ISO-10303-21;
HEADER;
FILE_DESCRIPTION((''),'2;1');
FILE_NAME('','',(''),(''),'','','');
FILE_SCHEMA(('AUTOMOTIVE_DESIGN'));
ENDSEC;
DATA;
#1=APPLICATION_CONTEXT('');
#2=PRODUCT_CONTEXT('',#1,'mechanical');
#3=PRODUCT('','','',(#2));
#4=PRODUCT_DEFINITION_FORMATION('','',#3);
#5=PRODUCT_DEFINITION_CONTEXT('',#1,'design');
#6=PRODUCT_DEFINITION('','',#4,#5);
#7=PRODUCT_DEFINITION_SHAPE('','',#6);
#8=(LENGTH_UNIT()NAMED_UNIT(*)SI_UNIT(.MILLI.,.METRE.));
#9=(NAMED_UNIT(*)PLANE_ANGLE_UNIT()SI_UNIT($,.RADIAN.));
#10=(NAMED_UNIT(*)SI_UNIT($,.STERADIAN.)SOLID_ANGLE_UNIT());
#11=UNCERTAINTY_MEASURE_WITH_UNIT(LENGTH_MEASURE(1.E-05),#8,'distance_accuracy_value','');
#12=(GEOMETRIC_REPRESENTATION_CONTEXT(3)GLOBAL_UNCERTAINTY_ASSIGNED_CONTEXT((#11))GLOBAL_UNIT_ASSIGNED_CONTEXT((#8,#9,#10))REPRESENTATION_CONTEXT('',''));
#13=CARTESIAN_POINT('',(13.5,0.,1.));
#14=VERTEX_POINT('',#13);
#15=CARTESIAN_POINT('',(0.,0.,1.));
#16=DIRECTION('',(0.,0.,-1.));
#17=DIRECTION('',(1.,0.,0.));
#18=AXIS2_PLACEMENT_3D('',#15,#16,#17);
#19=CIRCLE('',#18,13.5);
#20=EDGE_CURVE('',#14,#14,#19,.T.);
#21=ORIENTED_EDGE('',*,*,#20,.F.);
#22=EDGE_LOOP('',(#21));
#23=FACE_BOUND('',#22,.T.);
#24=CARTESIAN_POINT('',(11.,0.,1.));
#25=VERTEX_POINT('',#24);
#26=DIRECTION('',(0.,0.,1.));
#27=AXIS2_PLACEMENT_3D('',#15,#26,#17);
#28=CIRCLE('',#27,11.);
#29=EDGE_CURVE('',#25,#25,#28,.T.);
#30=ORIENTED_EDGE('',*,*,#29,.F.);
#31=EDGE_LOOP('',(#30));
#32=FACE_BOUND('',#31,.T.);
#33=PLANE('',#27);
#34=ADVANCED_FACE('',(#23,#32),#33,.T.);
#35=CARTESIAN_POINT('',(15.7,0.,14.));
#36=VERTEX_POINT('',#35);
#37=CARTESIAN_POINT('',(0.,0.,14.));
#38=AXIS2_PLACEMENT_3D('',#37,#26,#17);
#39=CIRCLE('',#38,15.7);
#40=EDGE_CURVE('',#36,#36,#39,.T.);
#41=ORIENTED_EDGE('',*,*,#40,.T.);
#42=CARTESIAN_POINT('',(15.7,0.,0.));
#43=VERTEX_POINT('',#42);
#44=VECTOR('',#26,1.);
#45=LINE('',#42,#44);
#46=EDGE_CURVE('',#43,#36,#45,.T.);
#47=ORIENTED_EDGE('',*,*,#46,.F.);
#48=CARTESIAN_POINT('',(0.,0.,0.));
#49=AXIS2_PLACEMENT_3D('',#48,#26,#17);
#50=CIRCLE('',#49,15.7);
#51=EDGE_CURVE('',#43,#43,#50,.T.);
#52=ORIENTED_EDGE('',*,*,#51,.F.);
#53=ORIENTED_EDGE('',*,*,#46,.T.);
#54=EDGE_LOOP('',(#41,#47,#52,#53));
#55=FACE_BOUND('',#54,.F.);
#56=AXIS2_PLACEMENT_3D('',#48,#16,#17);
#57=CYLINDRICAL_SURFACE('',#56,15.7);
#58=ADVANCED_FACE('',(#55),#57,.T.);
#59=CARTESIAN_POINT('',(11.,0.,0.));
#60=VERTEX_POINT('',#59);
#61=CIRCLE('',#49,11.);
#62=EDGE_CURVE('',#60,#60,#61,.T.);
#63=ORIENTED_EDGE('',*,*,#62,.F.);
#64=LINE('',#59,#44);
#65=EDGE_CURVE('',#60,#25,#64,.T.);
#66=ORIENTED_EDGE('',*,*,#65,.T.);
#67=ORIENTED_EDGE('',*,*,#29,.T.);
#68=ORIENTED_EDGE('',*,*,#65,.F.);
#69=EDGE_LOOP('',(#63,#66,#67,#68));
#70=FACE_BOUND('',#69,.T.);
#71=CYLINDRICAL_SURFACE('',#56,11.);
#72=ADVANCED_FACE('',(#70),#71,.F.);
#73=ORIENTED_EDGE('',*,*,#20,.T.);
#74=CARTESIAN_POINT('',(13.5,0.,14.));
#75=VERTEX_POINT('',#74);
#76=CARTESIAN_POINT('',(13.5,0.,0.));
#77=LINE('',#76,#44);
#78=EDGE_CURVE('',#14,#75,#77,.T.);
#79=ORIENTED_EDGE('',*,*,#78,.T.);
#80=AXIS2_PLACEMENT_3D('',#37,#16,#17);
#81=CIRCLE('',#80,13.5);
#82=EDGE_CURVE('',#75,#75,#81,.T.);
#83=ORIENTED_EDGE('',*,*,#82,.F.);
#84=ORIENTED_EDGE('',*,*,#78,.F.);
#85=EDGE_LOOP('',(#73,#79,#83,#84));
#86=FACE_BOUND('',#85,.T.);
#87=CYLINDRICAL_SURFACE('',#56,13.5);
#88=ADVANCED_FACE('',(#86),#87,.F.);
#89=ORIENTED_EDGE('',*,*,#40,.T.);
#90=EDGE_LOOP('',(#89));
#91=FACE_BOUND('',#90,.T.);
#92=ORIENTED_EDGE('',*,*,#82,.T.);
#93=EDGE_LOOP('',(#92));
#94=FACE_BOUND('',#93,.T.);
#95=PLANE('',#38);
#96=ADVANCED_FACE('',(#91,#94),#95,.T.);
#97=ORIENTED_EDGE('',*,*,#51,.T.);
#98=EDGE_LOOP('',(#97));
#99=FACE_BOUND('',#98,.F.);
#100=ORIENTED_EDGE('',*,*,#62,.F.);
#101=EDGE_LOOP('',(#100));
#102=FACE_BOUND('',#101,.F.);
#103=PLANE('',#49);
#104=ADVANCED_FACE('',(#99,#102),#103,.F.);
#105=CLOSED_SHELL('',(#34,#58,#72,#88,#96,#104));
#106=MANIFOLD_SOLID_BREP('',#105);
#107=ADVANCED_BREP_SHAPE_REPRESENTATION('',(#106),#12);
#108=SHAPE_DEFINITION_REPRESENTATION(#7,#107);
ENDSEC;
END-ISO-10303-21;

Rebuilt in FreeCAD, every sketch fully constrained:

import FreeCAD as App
import Part
import Sketcher

V = App.Vector

doc = App.newDocument("Part")
body = doc.addObject("PartDesign::Body", "Body")

# Sketch on XY plane
sketch1 = body.newObject("Sketcher::SketchObject", "Sketch")
sketch1.AttachmentSupport = (doc.getObject("XY_Plane"), [""])
sketch1.MapMode = "FlatFace"
sketch1.addGeometry(Part.Circle(V(0, 0, 0), V(0, 0, 1), 14), False)
sketch1.addConstraint([
    Sketcher.Constraint("Coincident", 0, 3, -1, 1),
    Sketcher.Constraint("Diameter", 0, 27.0),
])
pad1 = body.newObject("PartDesign::Pad", "Pad")
pad1.Profile = sketch1
pad1.Length = 20
body2 = doc.addObject("PartDesign::Body", "Body001")

# Sketch on XY plane
sketch2 = body2.newObject("Sketcher::SketchObject", "Sketch001")
sketch2.AttachmentSupport = (doc.getObject("XY_Plane001"), [""])
sketch2.MapMode = "FlatFace"
sketch2.addGeometry(Part.Circle(V(0, 0, 0), V(0, 0, 1), 16), False)
sketch2.addConstraint([
    Sketcher.Constraint("Coincident", 0, 3, -1, 1),
    Sketcher.Constraint("Diameter", 0, 31.4),
])
pad2 = body2.newObject("PartDesign::Pad", "Pad001")
pad2.Profile = sketch2
pad2.Length = 14
doc.recompute()

boolean = body2.newObject("PartDesign::Boolean", "Boolean")
boolean.Type = "Cut"
boolean.addObjects([body])
body3 = doc.addObject("PartDesign::Body", "Body002")

# Sketch on XY plane
sketch3 = body3.newObject("Sketcher::SketchObject", "Sketch002")
sketch3.AttachmentSupport = (doc.getObject("XY_Plane002"), [""])
sketch3.MapMode = "FlatFace"
sketch3.addGeometry(Part.Circle(V(0, 0, 0), V(0, 0, 1), 11), False)
sketch3.addConstraint([
    Sketcher.Constraint("Coincident", 0, 3, -1, 1),
    Sketcher.Constraint("Diameter", 0, 22.0),
])
pad3 = body3.newObject("PartDesign::Pad", "Pad002")
pad3.Profile = sketch3
pad3.Length = 1
body4 = doc.addObject("PartDesign::Body", "Body003")

# Sketch on XY plane
sketch4 = body4.newObject("Sketcher::SketchObject", "Sketch003")
sketch4.AttachmentSupport = (doc.getObject("XY_Plane003"), [""])
sketch4.MapMode = "FlatFace"
sketch4.addGeometry(Part.Circle(V(0, 0, 0), V(0, 0, 1), 15), False)
sketch4.addConstraint([
    Sketcher.Constraint("Coincident", 0, 3, -1, 1),
    Sketcher.Constraint("Diameter", 0, 30.0),
])
pad4 = body4.newObject("PartDesign::Pad", "Pad003")
pad4.Profile = sketch4
pad4.Length = 1
doc.recompute()

boolean2 = body4.newObject("PartDesign::Boolean", "Boolean001")
boolean2.Type = "Cut"
boolean2.addObjects([body3])
doc.recompute()

boolean3 = body4.newObject("PartDesign::Boolean", "Boolean002")
boolean3.Type = "Fuse"
boolean3.addObjects([body2])

doc.recompute()
